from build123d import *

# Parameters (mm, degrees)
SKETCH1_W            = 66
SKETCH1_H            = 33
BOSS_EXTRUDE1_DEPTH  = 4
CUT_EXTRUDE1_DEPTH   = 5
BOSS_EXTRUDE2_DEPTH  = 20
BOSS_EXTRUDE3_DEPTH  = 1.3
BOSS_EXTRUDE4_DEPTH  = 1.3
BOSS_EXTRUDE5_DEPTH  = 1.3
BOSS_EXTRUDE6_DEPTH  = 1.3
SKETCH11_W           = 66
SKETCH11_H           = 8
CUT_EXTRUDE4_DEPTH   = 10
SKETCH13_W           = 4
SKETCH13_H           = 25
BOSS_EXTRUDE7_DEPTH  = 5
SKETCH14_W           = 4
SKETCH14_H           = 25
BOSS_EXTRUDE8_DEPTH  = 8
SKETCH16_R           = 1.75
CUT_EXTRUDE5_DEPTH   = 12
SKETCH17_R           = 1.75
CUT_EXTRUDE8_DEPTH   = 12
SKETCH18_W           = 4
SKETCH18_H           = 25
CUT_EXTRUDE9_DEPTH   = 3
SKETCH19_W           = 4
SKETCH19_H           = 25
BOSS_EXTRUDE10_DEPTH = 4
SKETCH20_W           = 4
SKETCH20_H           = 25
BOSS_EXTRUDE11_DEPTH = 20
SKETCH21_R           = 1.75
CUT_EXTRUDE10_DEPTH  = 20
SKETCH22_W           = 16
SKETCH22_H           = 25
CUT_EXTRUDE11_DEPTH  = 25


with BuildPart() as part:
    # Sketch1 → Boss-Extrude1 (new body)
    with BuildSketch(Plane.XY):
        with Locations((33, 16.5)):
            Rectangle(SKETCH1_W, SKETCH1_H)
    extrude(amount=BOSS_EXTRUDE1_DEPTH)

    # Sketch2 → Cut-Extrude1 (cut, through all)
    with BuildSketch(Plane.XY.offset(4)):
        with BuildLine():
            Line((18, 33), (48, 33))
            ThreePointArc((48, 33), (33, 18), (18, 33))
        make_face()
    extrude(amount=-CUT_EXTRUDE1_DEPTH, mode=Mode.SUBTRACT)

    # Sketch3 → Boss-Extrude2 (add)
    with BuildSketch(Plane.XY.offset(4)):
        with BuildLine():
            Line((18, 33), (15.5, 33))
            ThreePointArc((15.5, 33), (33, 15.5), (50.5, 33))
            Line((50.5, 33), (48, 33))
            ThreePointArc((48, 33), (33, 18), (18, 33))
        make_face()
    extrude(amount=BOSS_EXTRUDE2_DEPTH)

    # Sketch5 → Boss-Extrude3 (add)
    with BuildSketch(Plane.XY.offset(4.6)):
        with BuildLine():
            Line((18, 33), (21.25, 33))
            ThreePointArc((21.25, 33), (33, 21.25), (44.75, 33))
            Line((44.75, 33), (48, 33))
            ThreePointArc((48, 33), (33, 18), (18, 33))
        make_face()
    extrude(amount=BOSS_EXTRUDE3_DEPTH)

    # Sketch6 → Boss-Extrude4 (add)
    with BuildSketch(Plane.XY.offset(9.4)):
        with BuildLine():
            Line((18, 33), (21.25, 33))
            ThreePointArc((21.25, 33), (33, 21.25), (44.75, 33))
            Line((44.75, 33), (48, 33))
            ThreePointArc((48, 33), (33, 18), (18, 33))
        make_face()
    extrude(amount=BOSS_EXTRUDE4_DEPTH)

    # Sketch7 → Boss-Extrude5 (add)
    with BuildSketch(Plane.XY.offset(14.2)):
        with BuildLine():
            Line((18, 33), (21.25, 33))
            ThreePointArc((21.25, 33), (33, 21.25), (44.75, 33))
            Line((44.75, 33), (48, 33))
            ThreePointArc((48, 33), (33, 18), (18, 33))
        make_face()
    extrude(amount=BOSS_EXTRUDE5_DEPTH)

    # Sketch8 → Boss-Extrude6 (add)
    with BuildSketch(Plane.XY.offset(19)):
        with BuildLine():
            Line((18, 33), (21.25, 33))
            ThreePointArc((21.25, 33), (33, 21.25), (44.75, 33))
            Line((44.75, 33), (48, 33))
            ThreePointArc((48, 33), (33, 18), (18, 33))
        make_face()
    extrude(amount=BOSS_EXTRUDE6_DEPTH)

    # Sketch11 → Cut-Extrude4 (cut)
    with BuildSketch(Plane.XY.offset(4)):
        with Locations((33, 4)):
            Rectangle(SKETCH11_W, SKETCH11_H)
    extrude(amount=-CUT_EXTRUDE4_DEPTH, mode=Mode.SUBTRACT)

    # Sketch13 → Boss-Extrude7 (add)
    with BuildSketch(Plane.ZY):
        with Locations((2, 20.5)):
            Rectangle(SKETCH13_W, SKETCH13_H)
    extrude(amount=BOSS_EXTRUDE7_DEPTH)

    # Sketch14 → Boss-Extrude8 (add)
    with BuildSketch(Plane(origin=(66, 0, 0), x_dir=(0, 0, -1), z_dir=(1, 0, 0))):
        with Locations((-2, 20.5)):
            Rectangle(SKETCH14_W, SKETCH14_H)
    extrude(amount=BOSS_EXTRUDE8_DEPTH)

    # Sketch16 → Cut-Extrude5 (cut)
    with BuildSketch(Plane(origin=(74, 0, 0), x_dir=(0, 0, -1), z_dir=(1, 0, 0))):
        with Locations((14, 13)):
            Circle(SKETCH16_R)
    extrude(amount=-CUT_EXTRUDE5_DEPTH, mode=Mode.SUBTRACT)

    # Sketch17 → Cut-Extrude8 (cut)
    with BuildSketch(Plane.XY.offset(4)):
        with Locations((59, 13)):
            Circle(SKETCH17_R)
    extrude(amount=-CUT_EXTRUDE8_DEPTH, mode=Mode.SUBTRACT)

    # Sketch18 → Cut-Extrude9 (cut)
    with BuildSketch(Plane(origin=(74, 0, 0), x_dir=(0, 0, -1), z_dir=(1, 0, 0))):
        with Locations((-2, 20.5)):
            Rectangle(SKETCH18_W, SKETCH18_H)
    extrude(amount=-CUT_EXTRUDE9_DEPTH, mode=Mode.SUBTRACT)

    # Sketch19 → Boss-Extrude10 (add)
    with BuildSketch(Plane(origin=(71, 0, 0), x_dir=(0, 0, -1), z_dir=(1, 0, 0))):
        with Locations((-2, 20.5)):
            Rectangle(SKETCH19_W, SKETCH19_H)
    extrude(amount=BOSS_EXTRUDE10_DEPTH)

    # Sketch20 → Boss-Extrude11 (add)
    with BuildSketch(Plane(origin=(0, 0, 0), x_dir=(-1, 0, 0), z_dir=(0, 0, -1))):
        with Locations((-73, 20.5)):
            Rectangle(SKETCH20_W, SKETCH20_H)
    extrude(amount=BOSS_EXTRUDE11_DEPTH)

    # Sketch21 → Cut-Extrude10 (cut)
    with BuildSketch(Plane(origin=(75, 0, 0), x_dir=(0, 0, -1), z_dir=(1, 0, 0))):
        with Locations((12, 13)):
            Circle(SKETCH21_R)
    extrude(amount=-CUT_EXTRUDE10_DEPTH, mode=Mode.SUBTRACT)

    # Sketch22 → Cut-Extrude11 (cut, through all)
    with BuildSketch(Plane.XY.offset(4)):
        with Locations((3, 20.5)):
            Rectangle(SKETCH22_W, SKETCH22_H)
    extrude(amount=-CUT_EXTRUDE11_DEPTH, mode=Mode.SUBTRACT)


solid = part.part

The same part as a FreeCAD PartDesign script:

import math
import FreeCAD as App
import Part
import Sketcher
from FreeCAD import Vector

doc = App.newDocument("Part")
body = doc.addObject("PartDesign::Body", "Body")

sketch1 = body.newObject("Sketcher::SketchObject", "Sketch")
sketch1.AttachmentSupport = (doc.getObject("XY_Plane"), [""])
sketch1.MapMode = "FlatFace"
sketch1.addGeometry(Part.LineSegment(Vector(0, 33, 0), Vector(0, 0, 0)), False)
sketch1.addGeometry(Part.LineSegment(Vector(0, 0, 0), Vector(66, 0, 0)), False)
sketch1.addGeometry(Part.LineSegment(Vector(66, 0, 0), Vector(66, 33, 0)), False)
sketch1.addGeometry(Part.LineSegment(Vector(66, 33, 0), Vector(0, 33, 0)), False)
sketch1.addConstraint(Sketcher.Constraint("Coincident", 0, 2, 1, 1))
sketch1.addConstraint(Sketcher.Constraint("Coincident", 1, 2, 2, 1))
sketch1.addConstraint(Sketcher.Constraint("Coincident", 2, 2, 3, 1))
sketch1.addConstraint(Sketcher.Constraint("Coincident", 3, 2, 0, 1))
sketch1.addConstraint(Sketcher.Constraint("Vertical", 0))
sketch1.addConstraint(Sketcher.Constraint("Horizontal", 1))
sketch1.addConstraint(Sketcher.Constraint("Vertical", 2))
sketch1.addConstraint(Sketcher.Constraint("Horizontal", 3))
sketch1.addConstraint(Sketcher.Constraint("Coincident", 0, 2, -1, 1))
sketch1.addConstraint(Sketcher.Constraint("DistanceX", 1, 1, 1, 2, 66.0))
sketch1.addConstraint(Sketcher.Constraint("DistanceY", 0, 2, 0, 1, 33.0))
pad1 = body.newObject("PartDesign::Pad", "Pad")
pad1.Profile = sketch1
pad1.Length = 4

sketch2 = body.newObject("Sketcher::SketchObject", "Sketch001")
sketch2.AttachmentSupport = (doc.getObject("XY_Plane"), [""])
sketch2.MapMode = "FlatFace"
sketch2.AttachmentOffset = App.Placement(Vector(0, 0, 4), App.Rotation())
sketch2.addGeometry(Part.LineSegment(Vector(48, 33, 0), Vector(18, 33, 0)), False)
sketch2.addGeometry(Part.ArcOfCircle(Part.Circle(Vector(33, 33, 0), Vector(0, 0, 1), 15), math.radians(180), math.radians(360)), False)
sketch2.addConstraint(Sketcher.Constraint("Coincident", 0, 1, 1, 2))
sketch2.addConstraint(Sketcher.Constraint("Coincident", 1, 1, 0, 2))
sketch2.addConstraint(Sketcher.Constraint("Horizontal", 0))
sketch2.addConstraint(Sketcher.Constraint("Horizontal", 1, 3, 0, 1))
sketch2.addConstraint(Sketcher.Constraint("Radius", 1, 15.0))
sketch2.addConstraint(Sketcher.Constraint("DistanceX", -1, 1, 1, 3, 33.0))
sketch2.addConstraint(Sketcher.Constraint("DistanceY", -1, 1, 1, 3, 33.0))
pocket1 = body.newObject("PartDesign::Pocket", "Pocket")
pocket1.Profile = sketch2
pocket1.Type = "ThroughAll"

sketch3 = body.newObject("Sketcher::SketchObject", "Sketch002")
sketch3.AttachmentSupport = (doc.getObject("XY_Plane"), [""])
sketch3.MapMode = "FlatFace"
sketch3.AttachmentOffset = App.Placement(Vector(0, 0, 4), App.Rotation())
sketch3.addGeometry(Part.LineSegment(Vector(18, 33, 0), Vector(15.5, 33, 0)), False)
sketch3.addGeometry(Part.ArcOfCircle(Part.Circle(Vector(33, 33, 0), Vector(0, 0, 1), 17.5), math.radians(180), math.radians(360)), False)
sketch3.addGeometry(Part.LineSegment(Vector(50.5, 33, 0), Vector(48, 33, 0)), False)
sketch3.addGeometry(Part.ArcOfCircle(Part.Circle(Vector(33, 33, 0), Vector(0, 0, 1), 15), math.radians(180), math.radians(360)), False)
sketch3.addConstraint(Sketcher.Constraint("Coincident", 0, 2, 1, 1))
sketch3.addConstraint(Sketcher.Constraint("Coincident", 1, 2, 2, 1))
sketch3.addConstraint(Sketcher.Constraint("Coincident", 2, 2, 3, 2))
sketch3.addConstraint(Sketcher.Constraint("Coincident", 3, 1, 0, 1))
sketch3.addConstraint(Sketcher.Constraint("Horizontal", 0))
sketch3.addConstraint(Sketcher.Constraint("Horizontal", 2))
sketch3.addConstraint(Sketcher.Constraint("Coincident", 3, 3, 1, 3))
sketch3.addConstraint(Sketcher.Constraint("Horizontal", 3, 3, 0, 2))
sketch3.addConstraint(Sketcher.Constraint("Horizontal", 0, 2, 1, 2))
sketch3.addConstraint(Sketcher.Constraint("Radius", 3, 15.0))
sketch3.addConstraint(Sketcher.Constraint("Radius", 1, 17.5))
sketch3.addConstraint(Sketcher.Constraint("DistanceX", -1, 1, 1, 3, 33.0))
sketch3.addConstraint(Sketcher.Constraint("DistanceY", -1, 1, 1, 3, 33.0))
pad2 = body.newObject("PartDesign::Pad", "Pad001")
pad2.Profile = sketch3
pad2.Length = 20

sketch4 = body.newObject("Sketcher::SketchObject", "Sketch003")
sketch4.AttachmentSupport = (doc.getObject("XY_Plane"), [""])
sketch4.MapMode = "FlatFace"
sketch4.AttachmentOffset = App.Placement(Vector(0, 0, 4.6), App.Rotation())
sketch4.addGeometry(Part.LineSegment(Vector(21.25, 33, 0), Vector(18, 33, 0)), False)
sketch4.addGeometry(Part.ArcOfCircle(Part.Circle(Vector(33, 33, 0), Vector(0, 0, 1), 15), math.radians(180), math.radians(360)), False)
sketch4.addGeometry(Part.LineSegment(Vector(48, 33, 0), Vector(44.75, 33, 0)), False)
sketch4.addGeometry(Part.ArcOfCircle(Part.Circle(Vector(33, 33, 0), Vector(0, 0, 1), 11.75), math.radians(180), math.radians(360)), False)
sketch4.addConstraint(Sketcher.Constraint("Coincident", 0, 2, 1, 1))
sketch4.addConstraint(Sketcher.Constraint("Coincident", 1, 2, 2, 1))
sketch4.addConstraint(Sketcher.Constraint("Coincident", 2, 2, 3, 2))
sketch4.addConstraint(Sketcher.Constraint("Coincident", 3, 1, 0, 1))
sketch4.addConstraint(Sketcher.Constraint("Horizontal", 0))
sketch4.addConstraint(Sketcher.Constraint("Horizontal", 2))
sketch4.addConstraint(Sketcher.Constraint("Coincident", 3, 3, 1, 3))
sketch4.addConstraint(Sketcher.Constraint("Horizontal", 3, 3, 0, 2))
sketch4.addConstraint(Sketcher.Constraint("Horizontal", 0, 2, 1, 2))
sketch4.addConstraint(Sketcher.Constraint("Radius", 1, 15.0))
sketch4.addConstraint(Sketcher.Constraint("Radius", 3, 11.75))
sketch4.addConstraint(Sketcher.Constraint("DistanceX", -1, 1, 1, 3, 33.0))
sketch4.addConstraint(Sketcher.Constraint("DistanceY", -1, 1, 1, 3, 33.0))
pad3 = body.newObject("PartDesign::Pad", "Pad002")
pad3.Profile = sketch4
pad3.Length = 1.3

sketch5 = body.newObject("Sketcher::SketchObject", "Sketch004")
sketch5.AttachmentSupport = (doc.getObject("XY_Plane"), [""])
sketch5.MapMode = "FlatFace"
sketch5.AttachmentOffset = App.Placement(Vector(0, 0, 9.4), App.Rotation())
sketch5.addGeometry(Part.LineSegment(Vector(21.25, 33, 0), Vector(18, 33, 0)), False)
sketch5.addGeometry(Part.ArcOfCircle(Part.Circle(Vector(33, 33, 0), Vector(0, 0, 1), 15), math.radians(180), math.radians(360)), False)
sketch5.addGeometry(Part.LineSegment(Vector(48, 33, 0), Vector(44.75, 33, 0)), False)
sketch5.addGeometry(Part.ArcOfCircle(Part.Circle(Vector(33, 33, 0), Vector(0, 0, 1), 11.75), math.radians(180), math.radians(360)), False)
sketch5.addConstraint(Sketcher.Constraint("Coincident", 0, 2, 1, 1))
sketch5.addConstraint(Sketcher.Constraint("Coincident", 1, 2, 2, 1))
sketch5.addConstraint(Sketcher.Constraint("Coincident", 2, 2, 3, 2))
sketch5.addConstraint(Sketcher.Constraint("Coincident", 3, 1, 0, 1))
sketch5.addConstraint(Sketcher.Constraint("Horizontal", 0))
sketch5.addConstraint(Sketcher.Constraint("Horizontal", 2))
sketch5.addConstraint(Sketcher.Constraint("Coincident", 3, 3, 1, 3))
sketch5.addConstraint(Sketcher.Constraint("Horizontal", 3, 3, 0, 2))
sketch5.addConstraint(Sketcher.Constraint("Horizontal", 0, 2, 1, 2))
sketch5.addConstraint(Sketcher.Constraint("Radius", 1, 15.0))
sketch5.addConstraint(Sketcher.Constraint("Radius", 3, 11.75))
sketch5.addConstraint(Sketcher.Constraint("DistanceX", -1, 1, 1, 3, 33.0))
sketch5.addConstraint(Sketcher.Constraint("DistanceY", -1, 1, 1, 3, 33.0))
pad4 = body.newObject("PartDesign::Pad", "Pad003")
pad4.Profile = sketch5
pad4.Length = 1.3

sketch6 = body.newObject("Sketcher::SketchObject", "Sketch005")
sketch6.AttachmentSupport = (doc.getObject("XY_Plane"), [""])
sketch6.MapMode = "FlatFace"
sketch6.AttachmentOffset = App.Placement(Vector(0, 0, 14.2), App.Rotation())
sketch6.addGeometry(Part.LineSegment(Vector(21.25, 33, 0), Vector(18, 33, 0)), False)
sketch6.addGeometry(Part.ArcOfCircle(Part.Circle(Vector(33, 33, 0), Vector(0, 0, 1), 15), math.radians(180), math.radians(360)), False)
sketch6.addGeometry(Part.LineSegment(Vector(48, 33, 0), Vector(44.75, 33, 0)), False)
sketch6.addGeometry(Part.ArcOfCircle(Part.Circle(Vector(33, 33, 0), Vector(0, 0, 1), 11.75), math.radians(180), math.radians(360)), False)
sketch6.addConstraint(Sketcher.Constraint("Coincident", 0, 2, 1, 1))
sketch6.addConstraint(Sketcher.Constraint("Coincident", 1, 2, 2, 1))
sketch6.addConstraint(Sketcher.Constraint("Coincident", 2, 2, 3, 2))
sketch6.addConstraint(Sketcher.Constraint("Coincident", 3, 1, 0, 1))
sketch6.addConstraint(Sketcher.Constraint("Horizontal", 0))
sketch6.addConstraint(Sketcher.Constraint("Horizontal", 2))
sketch6.addConstraint(Sketcher.Constraint("Coincident", 3, 3, 1, 3))
sketch6.addConstraint(Sketcher.Constraint("Horizontal", 3, 3, 0, 2))
sketch6.addConstraint(Sketcher.Constraint("Horizontal", 0, 2, 1, 2))
sketch6.addConstraint(Sketcher.Constraint("Radius", 1, 15.0))
sketch6.addConstraint(Sketcher.Constraint("Radius", 3, 11.75))
sketch6.addConstraint(Sketcher.Constraint("DistanceX", -1, 1, 1, 3, 33.0))
sketch6.addConstraint(Sketcher.Constraint("DistanceY", -1, 1, 1, 3, 33.0))
pad5 = body.newObject("PartDesign::Pad", "Pad004")
pad5.Profile = sketch6
pad5.Length = 1.3

sketch7 = body.newObject("Sketcher::SketchObject", "Sketch006")
sketch7.AttachmentSupport = (doc.getObject("XY_Plane"), [""])
sketch7.MapMode = "FlatFace"
sketch7.AttachmentOffset = App.Placement(Vector(0, 0, 19), App.Rotation())
sketch7.addGeometry(Part.LineSegment(Vector(21.25, 33, 0), Vector(18, 33, 0)), False)
sketch7.addGeometry(Part.ArcOfCircle(Part.Circle(Vector(33, 33, 0), Vector(0, 0, 1), 15), math.radians(180), math.radians(360)), False)
sketch7.addGeometry(Part.LineSegment(Vector(48, 33, 0), Vector(44.75, 33, 0)), False)
sketch7.addGeometry(Part.ArcOfCircle(Part.Circle(Vector(33, 33, 0), Vector(0, 0, 1), 11.75), math.radians(180), math.radians(360)), False)
sketch7.addConstraint(Sketcher.Constraint("Coincident", 0, 2, 1, 1))
sketch7.addConstraint(Sketcher.Constraint("Coincident", 1, 2, 2, 1))
sketch7.addConstraint(Sketcher.Constraint("Coincident", 2, 2, 3, 2))
sketch7.addConstraint(Sketcher.Constraint("Coincident", 3, 1, 0, 1))
sketch7.addConstraint(Sketcher.Constraint("Horizontal", 0))
sketch7.addConstraint(Sketcher.Constraint("Horizontal", 2))
sketch7.addConstraint(Sketcher.Constraint("Coincident", 3, 3, 1, 3))
sketch7.addConstraint(Sketcher.Constraint("Horizontal", 3, 3, 0, 2))
sketch7.addConstraint(Sketcher.Constraint("Horizontal", 0, 2, 1, 2))
sketch7.addConstraint(Sketcher.Constraint("Radius", 1, 15.0))
sketch7.addConstraint(Sketcher.Constraint("Radius", 3, 11.75))
sketch7.addConstraint(Sketcher.Constraint("DistanceX", -1, 1, 1, 3, 33.0))
sketch7.addConstraint(Sketcher.Constraint("DistanceY", -1, 1, 1, 3, 33.0))
pad6 = body.newObject("PartDesign::Pad", "Pad005")
pad6.Profile = sketch7
pad6.Length = 1.3

sketch8 = body.newObject("Sketcher::SketchObject", "Sketch007")
sketch8.AttachmentSupport = (doc.getObject("XY_Plane"), [""])
sketch8.MapMode = "FlatFace"
sketch8.AttachmentOffset = App.Placement(Vector(0, 0, 4), App.Rotation())
sketch8.addGeometry(Part.LineSegment(Vector(0, 8, 0), Vector(0, 0, 0)), False)
sketch8.addGeometry(Part.LineSegment(Vector(0, 0, 0), Vector(66, 0, 0)), False)
sketch8.addGeometry(Part.LineSegment(Vector(66, 0, 0), Vector(66, 8, 0)), False)
sketch8.addGeometry(Part.LineSegment(Vector(66, 8, 0), Vector(0, 8, 0)), False)
sketch8.addConstraint(Sketcher.Constraint("Coincident", 0, 2, 1, 1))
sketch8.addConstraint(Sketcher.Constraint("Coincident", 1, 2, 2, 1))
sketch8.addConstraint(Sketcher.Constraint("Coincident", 2, 2, 3, 1))
sketch8.addConstraint(Sketcher.Constraint("Coincident", 3, 2, 0, 1))
sketch8.addConstraint(Sketcher.Constraint("Vertical", 0))
sketch8.addConstraint(Sketcher.Constraint("Horizontal", 1))
sketch8.addConstraint(Sketcher.Constraint("Vertical", 2))
sketch8.addConstraint(Sketcher.Constraint("Horizontal", 3))
sketch8.addConstraint(Sketcher.Constraint("Coincident", 0, 2, -1, 1))
sketch8.addConstraint(Sketcher.Constraint("DistanceX", 1, 1, 1, 2, 66.0))
sketch8.addConstraint(Sketcher.Constraint("DistanceY", 0, 2, 0, 1, 8.0))
pocket2 = body.newObject("PartDesign::Pocket", "Pocket001")
pocket2.Profile = sketch8
pocket2.Length = 10

sketch9 = body.newObject("Sketcher::SketchObject", "Sketch008")
sketch9.AttachmentSupport = (doc.getObject("YZ_Plane"), [""])
sketch9.MapMode = "FlatFace"
sketch9.addGeometry(Part.LineSegment(Vector(33, 0, 0), Vector(8, 0, 0)), False)
sketch9.addGeometry(Part.LineSegment(Vector(8, 0, 0), Vector(8, 4, 0)), False)
sketch9.addGeometry(Part.LineSegment(Vector(8, 4, 0), Vector(33, 4, 0)), False)
sketch9.addGeometry(Part.LineSegment(Vector(33, 4, 0), Vector(33, 0, 0)), False)
sketch9.addConstraint(Sketcher.Constraint("Coincident", 0, 2, 1, 1))
sketch9.addConstraint(Sketcher.Constraint("Coincident", 1, 2, 2, 1))
sketch9.addConstraint(Sketcher.Constraint("Coincident", 2, 2, 3, 1))
sketch9.addConstraint(Sketcher.Constraint("Coincident", 3, 2, 0, 1))
sketch9.addConstraint(Sketcher.Constraint("Horizontal", 0))
sketch9.addConstraint(Sketcher.Constraint("Vertical", 1))
sketch9.addConstraint(Sketcher.Constraint("Horizontal", 2))
sketch9.addConstraint(Sketcher.Constraint("Vertical", 3))
sketch9.addConstraint(Sketcher.Constraint("PointOnObject", 0, 2, -1))
sketch9.addConstraint(Sketcher.Constraint("DistanceX", 0, 2, 0, 1, 25.0))
sketch9.addConstraint(Sketcher.Constraint("DistanceY", 1, 1, 1, 2, 4.0))
sketch9.addConstraint(Sketcher.Constraint("DistanceX", -1, 1, 0, 2, 8.0))
pad7 = body.newObject("PartDesign::Pad", "Pad006")
pad7.Profile = sketch9
pad7.Length = 5
pad7.Reversed = True

sketch10 = body.newObject("Sketcher::SketchObject", "Sketch009")
sketch10.AttachmentSupport = (doc.getObject("YZ_Plane"), [""])
sketch10.MapMode = "FlatFace"
sketch10.AttachmentOffset = App.Placement(Vector(0, 0, 66), App.Rotation())
sketch10.addGeometry(Part.LineSegment(Vector(33, 4, 0), Vector(8, 4, 0)), False)
sketch10.addGeometry(Part.LineSegment(Vector(8, 4, 0), Vector(8, 0, 0)), False)
sketch10.addGeometry(Part.LineSegment(Vector(8, 0, 0), Vector(33, 0, 0)), False)
sketch10.addGeometry(Part.LineSegment(Vector(33, 0, 0), Vector(33, 4, 0)), False)
sketch10.addConstraint(Sketcher.Constraint("Coincident", 0, 2, 1, 1))
sketch10.addConstraint(Sketcher.Constraint("Coincident", 1, 2, 2, 1))
sketch10.addConstraint(Sketcher.Constraint("Coincident", 2, 2, 3, 1))
sketch10.addConstraint(Sketcher.Constraint("Coincident", 3, 2, 0, 1))
sketch10.addConstraint(Sketcher.Constraint("Horizontal", 0))
sketch10.addConstraint(Sketcher.Constraint("Vertical", 1))
sketch10.addConstraint(Sketcher.Constraint("Horizontal", 2))
sketch10.addConstraint(Sketcher.Constraint("Vertical", 3))
sketch10.addConstraint(Sketcher.Constraint("PointOnObject", 1, 2, -1))
sketch10.addConstraint(Sketcher.Constraint("DistanceX", 0, 2, 0, 1, 25.0))
sketch10.addConstraint(Sketcher.Constraint("DistanceY", 1, 2, 1, 1, 4.0))
sketch10.addConstraint(Sketcher.Constraint("DistanceX", -1, 1, 0, 2, 8.0))
pad8 = body.newObject("PartDesign::Pad", "Pad007")
pad8.Profile = sketch10
pad8.Length = 8

sketch11 = body.newObject("Sketcher::SketchObject", "Sketch010")
sketch11.AttachmentSupport = (doc.getObject("YZ_Plane"), [""])
sketch11.MapMode = "FlatFace"
sketch11.AttachmentOffset = App.Placement(Vector(0, 0, 74), App.Rotation())
sketch11.addGeometry(Part.Circle(Vector(13, -14, 0), Vector(0, 0, 1), 1.75), False)
sketch11.addConstraint(Sketcher.Constraint("Diameter", 0, 3.5))
sketch11.addConstraint(Sketcher.Constraint("DistanceX", -1, 1, 0, 3, 13.0))
sketch11.addConstraint(Sketcher.Constraint("DistanceY", 0, 3, -1, 1, 14.0))
pocket3 = body.newObject("PartDesign::Pocket", "Pocket002")
pocket3.Profile = sketch11
pocket3.Length = 12

sketch12 = body.newObject("Sketcher::SketchObject", "Sketch011")
sketch12.AttachmentSupport = (doc.getObject("XY_Plane"), [""])
sketch12.MapMode = "FlatFace"
sketch12.AttachmentOffset = App.Placement(Vector(0, 0, 4), App.Rotation())
sketch12.addGeometry(Part.Circle(Vector(59, 13, 0), Vector(0, 0, 1), 1.75), False)
sketch12.addConstraint(Sketcher.Constraint("Diameter", 0, 3.5))
sketch12.addConstraint(Sketcher.Constraint("DistanceX", -1, 1, 0, 3, 59.0))
sketch12.addConstraint(Sketcher.Constraint("DistanceY", -1, 1, 0, 3, 13.0))
pocket4 = body.newObject("PartDesign::Pocket", "Pocket003")
pocket4.Profile = sketch12
pocket4.Length = 12

sketch13 = body.newObject("Sketcher::SketchObject", "Sketch012")
sketch13.AttachmentSupport = (doc.getObject("YZ_Plane"), [""])
sketch13.MapMode = "FlatFace"
sketch13.AttachmentOffset = App.Placement(Vector(0, 0, 74), App.Rotation())
sketch13.addGeometry(Part.LineSegment(Vector(33, 4, 0), Vector(8, 4, 0)), False)
sketch13.addGeometry(Part.LineSegment(Vector(8, 4, 0), Vector(8, 0, 0)), False)
sketch13.addGeometry(Part.LineSegment(Vector(8, 0, 0), Vector(33, 0, 0)), False)
sketch13.addGeometry(Part.LineSegment(Vector(33, 0, 0), Vector(33, 4, 0)), False)
sketch13.addConstraint(Sketcher.Constraint("Coincident", 0, 2, 1, 1))
sketch13.addConstraint(Sketcher.Constraint("Coincident", 1, 2, 2, 1))
sketch13.addConstraint(Sketcher.Constraint("Coincident", 2, 2, 3, 1))
sketch13.addConstraint(Sketcher.Constraint("Coincident", 3, 2, 0, 1))
sketch13.addConstraint(Sketcher.Constraint("Horizontal", 0))
sketch13.addConstraint(Sketcher.Constraint("Vertical", 1))
sketch13.addConstraint(Sketcher.Constraint("Horizontal", 2))
sketch13.addConstraint(Sketcher.Constraint("Vertical", 3))
sketch13.addConstraint(Sketcher.Constraint("PointOnObject", 1, 2, -1))
sketch13.addConstraint(Sketcher.Constraint("DistanceX", 0, 2, 0, 1, 25.0))
sketch13.addConstraint(Sketcher.Constraint("DistanceY", 1, 2, 1, 1, 4.0))
sketch13.addConstraint(Sketcher.Constraint("DistanceX", -1, 1, 0, 2, 8.0))
pocket5 = body.newObject("PartDesign::Pocket", "Pocket004")
pocket5.Profile = sketch13
pocket5.Length = 3

sketch14 = body.newObject("Sketcher::SketchObject", "Sketch013")
sketch14.AttachmentSupport = (doc.getObject("YZ_Plane"), [""])
sketch14.MapMode = "FlatFace"
sketch14.AttachmentOffset = App.Placement(Vector(0, 0, 71), App.Rotation())
sketch14.addGeometry(Part.LineSegment(Vector(33, 4, 0), Vector(8, 4, 0)), False)
sketch14.addGeometry(Part.LineSegment(Vector(8, 4, 0), Vector(8, 0, 0)), False)
sketch14.addGeometry(Part.LineSegment(Vector(8, 0, 0), Vector(33, 0, 0)), False)
sketch14.addGeometry(Part.LineSegment(Vector(33, 0, 0), Vector(33, 4, 0)), False)
sketch14.addConstraint(Sketcher.Constraint("Coincident", 0, 2, 1, 1))
sketch14.addConstraint(Sketcher.Constraint("Coincident", 1, 2, 2, 1))
sketch14.addConstraint(Sketcher.Constraint("Coincident", 2, 2, 3, 1))
sketch14.addConstraint(Sketcher.Constraint("Coincident", 3, 2, 0, 1))
sketch14.addConstraint(Sketcher.Constraint("Horizontal", 0))
sketch14.addConstraint(Sketcher.Constraint("Vertical", 1))
sketch14.addConstraint(Sketcher.Constraint("Horizontal", 2))
sketch14.addConstraint(Sketcher.Constraint("Vertical", 3))
sketch14.addConstraint(Sketcher.Constraint("PointOnObject", 1, 2, -1))
sketch14.addConstraint(Sketcher.Constraint("DistanceX", 0, 2, 0, 1, 25.0))
sketch14.addConstraint(Sketcher.Constraint("DistanceY", 1, 2, 1, 1, 4.0))
sketch14.addConstraint(Sketcher.Constraint("DistanceX", -1, 1, 0, 2, 8.0))
pad9 = body.newObject("PartDesign::Pad", "Pad008")
pad9.Profile = sketch14
pad9.Length = 4

sketch15 = body.newObject("Sketcher::SketchObject", "Sketch014")
sketch15.AttachmentSupport = (doc.getObject("XY_Plane"), [""])
sketch15.MapMode = "FlatFace"
sketch15.addGeometry(Part.LineSegment(Vector(75, 33, 0), Vector(75, 8, 0)), False)
sketch15.addGeometry(Part.LineSegment(Vector(75, 8, 0), Vector(71, 8, 0)), False)
sketch15.addGeometry(Part.LineSegment(Vector(71, 8, 0), Vector(71, 33, 0)), False)
sketch15.addGeometry(Part.LineSegment(Vector(71, 33, 0), Vector(75, 33, 0)), False)
sketch15.addConstraint(Sketcher.Constraint("Coincident", 0, 2, 1, 1))
sketch15.addConstraint(Sketcher.Constraint("Coincident", 1, 2, 2, 1))
sketch15.addConstraint(Sketcher.Constraint("Coincident", 2, 2, 3, 1))
sketch15.addConstraint(Sketcher.Constraint("Coincident", 3, 2, 0, 1))
sketch15.addConstraint(Sketcher.Constraint("Vertical", 0))
sketch15.addConstraint(Sketcher.Constraint("Horizontal", 1))
sketch15.addConstraint(Sketcher.Constraint("Vertical", 2))
sketch15.addConstraint(Sketcher.Constraint("Horizontal", 3))
sketch15.addConstraint(Sketcher.Constraint("DistanceX", 1, 2, 1, 1, 4.0))
sketch15.addConstraint(Sketcher.Constraint("DistanceY", 0, 2, 0, 1, 25.0))
sketch15.addConstraint(Sketcher.Constraint("DistanceX", -1, 1, 0, 2, 75.0))
sketch15.addConstraint(Sketcher.Constraint("DistanceY", -1, 1, 0, 2, 8.0))
pad10 = body.newObject("PartDesign::Pad", "Pad009")
pad10.Profile = sketch15
pad10.Length = 20
pad10.Reversed = True

sketch16 = body.newObject("Sketcher::SketchObject", "Sketch015")
sketch16.AttachmentSupport = (doc.getObject("YZ_Plane"), [""])
sketch16.MapMode = "FlatFace"
sketch16.AttachmentOffset = App.Placement(Vector(0, 0, 75), App.Rotation())
sketch16.addGeometry(Part.Circle(Vector(13, -12, 0), Vector(0, 0, 1), 1.75), False)
sketch16.addConstraint(Sketcher.Constraint("Diameter", 0, 3.5))
sketch16.addConstraint(Sketcher.Constraint("DistanceX", -1, 1, 0, 3, 13.0))
sketch16.addConstraint(Sketcher.Constraint("DistanceY", 0, 3, -1, 1, 12.0))
pocket6 = body.newObject("PartDesign::Pocket", "Pocket005")
pocket6.Profile = sketch16
pocket6.Length = 20

sketch17 = body.newObject("Sketcher::SketchObject", "Sketch016")
sketch17.AttachmentSupport = (doc.getObject("XY_Plane"), [""])
sketch17.MapMode = "FlatFace"
sketch17.AttachmentOffset = App.Placement(Vector(0, 0, 4), App.Rotation())
sketch17.addGeometry(Part.LineSegment(Vector(-5, 33, 0), Vector(-5, 8, 0)), False)
sketch17.addGeometry(Part.LineSegment(Vector(-5, 8, 0), Vector(11, 8, 0)), False)
sketch17.addGeometry(Part.LineSegment(Vector(11, 8, 0), Vector(11, 33, 0)), False)
sketch17.addGeometry(Part.LineSegment(Vector(11, 33, 0), Vector(-5, 33, 0)), False)
sketch17.addConstraint(Sketcher.Constraint("Coincident", 0, 2, 1, 1))
sketch17.addConstraint(Sketcher.Constraint("Coincident", 1, 2, 2, 1))
sketch17.addConstraint(Sketcher.Constraint("Coincident", 2, 2, 3, 1))
sketch17.addConstraint(Sketcher.Constraint("Coincident", 3, 2, 0, 1))
sketch17.addConstraint(Sketcher.Constraint("Vertical", 0))
sketch17.addConstraint(Sketcher.Constraint("Horizontal", 1))
sketch17.addConstraint(Sketcher.Constraint("Vertical", 2))
sketch17.addConstraint(Sketcher.Constraint("Horizontal", 3))
sketch17.addConstraint(Sketcher.Constraint("DistanceX", 1, 1, 1, 2, 16.0))
sketch17.addConstraint(Sketcher.Constraint("DistanceY", 0, 2, 0, 1, 25.0))
sketch17.addConstraint(Sketcher.Constraint("DistanceX", 0, 2, -1, 1, 5.0))
sketch17.addConstraint(Sketcher.Constraint("DistanceY", -1, 1, 0, 2, 8.0))
pocket7 = body.newObject("PartDesign::Pocket", "Pocket006")
pocket7.Profile = sketch17
pocket7.Type = "ThroughAll"

doc.recompute()
